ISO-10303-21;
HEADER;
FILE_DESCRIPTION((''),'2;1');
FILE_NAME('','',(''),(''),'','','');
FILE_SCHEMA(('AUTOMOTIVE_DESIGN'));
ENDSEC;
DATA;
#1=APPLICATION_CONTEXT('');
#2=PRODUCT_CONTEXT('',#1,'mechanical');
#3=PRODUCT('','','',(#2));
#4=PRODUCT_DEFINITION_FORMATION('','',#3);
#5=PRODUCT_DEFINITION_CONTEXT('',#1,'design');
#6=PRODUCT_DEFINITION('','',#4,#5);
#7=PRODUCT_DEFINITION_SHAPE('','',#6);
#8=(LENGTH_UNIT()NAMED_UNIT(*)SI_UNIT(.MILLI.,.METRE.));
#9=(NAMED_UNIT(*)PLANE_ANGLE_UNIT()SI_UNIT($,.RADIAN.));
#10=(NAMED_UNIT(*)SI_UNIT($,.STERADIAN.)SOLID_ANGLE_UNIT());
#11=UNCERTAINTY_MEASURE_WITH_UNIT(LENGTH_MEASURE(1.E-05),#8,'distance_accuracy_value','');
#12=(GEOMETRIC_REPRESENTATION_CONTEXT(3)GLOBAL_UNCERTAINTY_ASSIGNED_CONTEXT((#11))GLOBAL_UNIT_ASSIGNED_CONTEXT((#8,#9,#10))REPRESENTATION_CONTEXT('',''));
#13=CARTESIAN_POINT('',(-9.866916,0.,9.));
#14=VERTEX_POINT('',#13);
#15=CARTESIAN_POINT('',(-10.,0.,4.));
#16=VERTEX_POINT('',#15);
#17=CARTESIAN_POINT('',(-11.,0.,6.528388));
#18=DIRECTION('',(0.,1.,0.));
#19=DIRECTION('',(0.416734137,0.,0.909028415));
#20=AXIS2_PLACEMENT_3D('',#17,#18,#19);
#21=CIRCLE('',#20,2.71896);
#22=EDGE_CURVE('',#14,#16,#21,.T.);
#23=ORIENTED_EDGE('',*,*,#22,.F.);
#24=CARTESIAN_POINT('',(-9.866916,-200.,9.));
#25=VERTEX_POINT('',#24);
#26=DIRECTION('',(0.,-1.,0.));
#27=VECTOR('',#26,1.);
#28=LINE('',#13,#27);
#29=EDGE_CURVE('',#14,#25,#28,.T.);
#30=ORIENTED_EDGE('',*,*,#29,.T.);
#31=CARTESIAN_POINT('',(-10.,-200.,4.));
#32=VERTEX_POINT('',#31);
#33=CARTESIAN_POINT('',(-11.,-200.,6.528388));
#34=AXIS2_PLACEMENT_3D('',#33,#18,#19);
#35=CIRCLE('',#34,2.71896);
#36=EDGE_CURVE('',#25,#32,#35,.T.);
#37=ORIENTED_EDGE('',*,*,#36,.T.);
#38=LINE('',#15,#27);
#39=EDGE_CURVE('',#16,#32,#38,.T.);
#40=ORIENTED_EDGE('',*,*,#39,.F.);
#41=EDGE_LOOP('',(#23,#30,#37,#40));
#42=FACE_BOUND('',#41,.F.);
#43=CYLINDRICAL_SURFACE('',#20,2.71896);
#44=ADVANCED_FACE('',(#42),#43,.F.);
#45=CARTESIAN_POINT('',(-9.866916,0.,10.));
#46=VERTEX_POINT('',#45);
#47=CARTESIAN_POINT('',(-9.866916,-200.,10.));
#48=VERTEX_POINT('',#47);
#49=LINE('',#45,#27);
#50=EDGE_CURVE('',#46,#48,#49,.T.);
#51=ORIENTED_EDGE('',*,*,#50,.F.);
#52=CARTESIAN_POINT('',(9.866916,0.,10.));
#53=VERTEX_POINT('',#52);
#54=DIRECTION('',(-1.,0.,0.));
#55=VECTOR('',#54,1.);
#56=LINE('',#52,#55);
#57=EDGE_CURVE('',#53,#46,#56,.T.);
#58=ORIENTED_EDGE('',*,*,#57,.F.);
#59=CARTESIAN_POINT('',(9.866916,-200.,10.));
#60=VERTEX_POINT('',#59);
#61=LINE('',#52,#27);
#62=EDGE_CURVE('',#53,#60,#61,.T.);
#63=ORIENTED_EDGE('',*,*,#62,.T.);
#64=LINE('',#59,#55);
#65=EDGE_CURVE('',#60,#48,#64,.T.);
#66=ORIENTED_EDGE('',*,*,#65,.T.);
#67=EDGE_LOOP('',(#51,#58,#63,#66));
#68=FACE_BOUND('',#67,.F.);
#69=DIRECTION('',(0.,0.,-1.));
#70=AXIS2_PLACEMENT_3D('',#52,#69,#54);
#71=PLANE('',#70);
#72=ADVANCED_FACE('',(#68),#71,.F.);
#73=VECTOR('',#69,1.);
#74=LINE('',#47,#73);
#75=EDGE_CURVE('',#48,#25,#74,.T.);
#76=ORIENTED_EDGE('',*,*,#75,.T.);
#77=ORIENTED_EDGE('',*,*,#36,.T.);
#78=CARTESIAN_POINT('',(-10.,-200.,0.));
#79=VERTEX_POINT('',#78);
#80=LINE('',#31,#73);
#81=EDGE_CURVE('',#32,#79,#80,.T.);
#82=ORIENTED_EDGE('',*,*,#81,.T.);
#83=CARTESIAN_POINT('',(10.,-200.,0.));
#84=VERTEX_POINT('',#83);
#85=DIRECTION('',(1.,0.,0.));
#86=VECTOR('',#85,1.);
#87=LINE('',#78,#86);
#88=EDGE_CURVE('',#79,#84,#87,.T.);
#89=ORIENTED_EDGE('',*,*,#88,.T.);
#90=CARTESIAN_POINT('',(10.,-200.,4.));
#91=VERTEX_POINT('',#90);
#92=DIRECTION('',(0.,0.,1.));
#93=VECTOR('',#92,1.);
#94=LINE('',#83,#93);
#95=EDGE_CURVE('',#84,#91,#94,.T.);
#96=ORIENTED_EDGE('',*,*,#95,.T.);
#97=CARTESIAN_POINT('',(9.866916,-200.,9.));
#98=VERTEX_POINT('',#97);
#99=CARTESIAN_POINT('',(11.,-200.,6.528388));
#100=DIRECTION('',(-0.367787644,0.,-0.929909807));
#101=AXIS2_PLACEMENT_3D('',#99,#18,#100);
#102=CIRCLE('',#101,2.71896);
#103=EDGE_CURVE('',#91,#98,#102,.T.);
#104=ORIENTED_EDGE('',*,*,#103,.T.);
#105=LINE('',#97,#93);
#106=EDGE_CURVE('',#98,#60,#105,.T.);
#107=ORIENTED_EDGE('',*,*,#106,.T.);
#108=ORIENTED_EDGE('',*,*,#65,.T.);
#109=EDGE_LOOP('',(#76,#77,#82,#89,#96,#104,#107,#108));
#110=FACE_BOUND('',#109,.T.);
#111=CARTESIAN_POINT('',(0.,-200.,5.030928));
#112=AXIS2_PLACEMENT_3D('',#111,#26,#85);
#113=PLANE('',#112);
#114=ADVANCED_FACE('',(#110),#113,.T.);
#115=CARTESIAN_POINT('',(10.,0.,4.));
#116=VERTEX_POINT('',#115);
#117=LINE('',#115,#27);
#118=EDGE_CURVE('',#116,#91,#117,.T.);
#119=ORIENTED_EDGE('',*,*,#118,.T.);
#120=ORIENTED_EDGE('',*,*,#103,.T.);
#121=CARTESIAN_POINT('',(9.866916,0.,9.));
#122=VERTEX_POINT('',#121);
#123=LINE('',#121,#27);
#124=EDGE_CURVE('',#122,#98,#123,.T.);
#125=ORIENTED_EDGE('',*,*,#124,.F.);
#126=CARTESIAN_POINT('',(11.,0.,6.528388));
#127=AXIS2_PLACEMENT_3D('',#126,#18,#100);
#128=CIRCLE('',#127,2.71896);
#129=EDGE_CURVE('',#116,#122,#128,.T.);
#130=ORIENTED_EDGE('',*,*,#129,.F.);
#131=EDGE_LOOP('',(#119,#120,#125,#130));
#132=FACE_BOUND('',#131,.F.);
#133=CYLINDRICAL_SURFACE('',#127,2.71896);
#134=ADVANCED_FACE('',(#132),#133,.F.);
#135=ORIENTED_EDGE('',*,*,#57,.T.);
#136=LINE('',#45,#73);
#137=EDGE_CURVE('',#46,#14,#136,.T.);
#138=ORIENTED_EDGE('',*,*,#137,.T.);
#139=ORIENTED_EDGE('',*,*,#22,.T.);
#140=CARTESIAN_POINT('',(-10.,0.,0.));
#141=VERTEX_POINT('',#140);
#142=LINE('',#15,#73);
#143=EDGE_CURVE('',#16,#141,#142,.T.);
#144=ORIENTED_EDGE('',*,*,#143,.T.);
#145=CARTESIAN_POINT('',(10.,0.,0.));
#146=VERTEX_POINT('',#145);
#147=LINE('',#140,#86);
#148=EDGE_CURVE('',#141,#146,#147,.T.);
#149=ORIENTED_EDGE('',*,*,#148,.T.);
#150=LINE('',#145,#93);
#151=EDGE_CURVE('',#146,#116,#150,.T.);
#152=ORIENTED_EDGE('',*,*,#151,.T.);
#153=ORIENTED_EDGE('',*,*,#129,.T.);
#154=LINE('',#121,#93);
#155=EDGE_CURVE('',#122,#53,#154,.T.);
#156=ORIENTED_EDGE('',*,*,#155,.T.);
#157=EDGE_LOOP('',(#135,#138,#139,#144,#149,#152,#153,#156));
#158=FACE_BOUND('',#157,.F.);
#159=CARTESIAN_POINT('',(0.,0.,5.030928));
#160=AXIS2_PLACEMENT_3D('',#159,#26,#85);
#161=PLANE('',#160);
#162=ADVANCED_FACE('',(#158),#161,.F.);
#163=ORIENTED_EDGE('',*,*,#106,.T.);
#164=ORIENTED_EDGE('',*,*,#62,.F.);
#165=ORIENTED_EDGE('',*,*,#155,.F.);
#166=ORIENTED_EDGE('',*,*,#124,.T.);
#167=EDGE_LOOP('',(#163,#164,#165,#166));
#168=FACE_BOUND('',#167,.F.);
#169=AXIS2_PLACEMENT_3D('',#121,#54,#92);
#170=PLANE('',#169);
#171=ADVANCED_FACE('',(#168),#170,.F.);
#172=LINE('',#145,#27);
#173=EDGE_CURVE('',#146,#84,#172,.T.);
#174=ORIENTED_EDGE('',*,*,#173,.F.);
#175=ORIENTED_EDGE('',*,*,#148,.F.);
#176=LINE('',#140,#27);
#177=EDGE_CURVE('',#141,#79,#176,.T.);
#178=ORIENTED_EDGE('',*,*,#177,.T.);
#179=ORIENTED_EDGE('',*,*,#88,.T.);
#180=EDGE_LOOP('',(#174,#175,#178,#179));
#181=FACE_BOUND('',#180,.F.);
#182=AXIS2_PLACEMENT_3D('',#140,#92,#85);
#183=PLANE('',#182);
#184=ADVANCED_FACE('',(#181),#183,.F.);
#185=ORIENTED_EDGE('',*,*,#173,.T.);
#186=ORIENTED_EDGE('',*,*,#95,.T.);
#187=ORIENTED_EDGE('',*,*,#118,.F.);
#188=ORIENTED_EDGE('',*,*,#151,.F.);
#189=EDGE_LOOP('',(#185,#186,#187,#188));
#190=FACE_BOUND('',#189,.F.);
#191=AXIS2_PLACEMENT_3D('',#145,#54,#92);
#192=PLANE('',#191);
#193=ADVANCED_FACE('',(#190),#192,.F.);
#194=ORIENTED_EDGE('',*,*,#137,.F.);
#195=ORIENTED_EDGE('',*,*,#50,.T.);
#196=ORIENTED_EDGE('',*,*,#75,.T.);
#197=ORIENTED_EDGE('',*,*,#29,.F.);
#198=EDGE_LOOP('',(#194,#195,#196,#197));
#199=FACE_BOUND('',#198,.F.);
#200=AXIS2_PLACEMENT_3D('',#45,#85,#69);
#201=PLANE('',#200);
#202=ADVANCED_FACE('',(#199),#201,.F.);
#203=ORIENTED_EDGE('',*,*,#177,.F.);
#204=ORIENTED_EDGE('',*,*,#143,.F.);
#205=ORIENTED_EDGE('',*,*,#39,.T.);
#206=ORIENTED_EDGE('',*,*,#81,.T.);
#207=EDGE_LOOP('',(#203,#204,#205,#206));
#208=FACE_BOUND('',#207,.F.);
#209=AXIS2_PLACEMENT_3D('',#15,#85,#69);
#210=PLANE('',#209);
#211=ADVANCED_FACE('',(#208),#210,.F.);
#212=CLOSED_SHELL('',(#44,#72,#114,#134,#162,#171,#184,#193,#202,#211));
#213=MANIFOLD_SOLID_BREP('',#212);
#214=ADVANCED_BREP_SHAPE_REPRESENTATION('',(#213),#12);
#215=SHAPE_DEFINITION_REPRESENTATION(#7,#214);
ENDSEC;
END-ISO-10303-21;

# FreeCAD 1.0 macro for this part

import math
import FreeCAD as App
import Part
import Sketcher
from FreeCAD import Vector

doc = App.newDocument("Part")
body = doc.addObject("PartDesign::Body", "Body")

sketch1 = body.newObject("Sketcher::SketchObject", "Sketch")
sketch1.AttachmentSupport = (doc.getObject("XZ_Plane"), [""])
sketch1.MapMode = "FlatFace"
sketch1.addGeometry([
    Part.LineSegment(Vector(-10, 0, 0), Vector(10, 0, 0)),
    Part.LineSegment(Vector(10, 0, 0), Vector(10, 4, 0)),
    Part.ArcOfCircle(Part.Circle(Vector(11, 6.5, 0), Vector(0, 0, 1), 2.7), math.radians(115), math.radians(248)),
    Part.LineSegment(Vector(9.9, 9, 0), Vector(9.9, 10, 0)),
    Part.LineSegment(Vector(9.9, 10, 0), Vector(-9.9, 10, 0)),
    Part.LineSegment(Vector(-9.9, 10, 0), Vector(-9.9, 9, 0)),
    Part.ArcOfCircle(Part.Circle(Vector(-11, 6.5, 0), Vector(0, 0, 1), 2.7), math.radians(-68), math.radians(65)),
    Part.LineSegment(Vector(-10, 4, 0), Vector(-10, 0, 0)),
], False)
sketch1.addConstraint([
    Sketcher.Constraint("Coincident", 0, 2, 1, 1),
    Sketcher.Constraint("Coincident", 1, 2, 2, 2),
    Sketcher.Constraint("Coincident", 2, 1, 3, 1),
    Sketcher.Constraint("Coincident", 3, 2, 4, 1),
    Sketcher.Constraint("Coincident", 4, 2, 5, 1),
    Sketcher.Constraint("Coincident", 5, 2, 6, 2),
    Sketcher.Constraint("Coincident", 6, 1, 7, 1),
    Sketcher.Constraint("Coincident", 7, 2, 0, 1),
    Sketcher.Constraint("Horizontal", 0),
    Sketcher.Constraint("Vertical", 1),
    Sketcher.Constraint("Vertical", 3),
    Sketcher.Constraint("Horizontal", 4),
    Sketcher.Constraint("Vertical", 5),
    Sketcher.Constraint("Vertical", 7),
    Sketcher.Constraint("Equal", 2, 6),
    Sketcher.Constraint("Symmetric", 0, 2, 7, 2, -1, 1),
    Sketcher.Constraint("Symmetric", 2, 3, 6, 3, -2),
    Sketcher.Constraint("Horizontal", 2, 1, 5, 2),
    Sketcher.Constraint("DistanceX", 0, 1, 0, 2, 20.0),
    Sketcher.Constraint("DistanceY", 1, 1, 1, 2, 4.0),
    Sketcher.Constraint("DistanceY", 3, 1, 3, 2, 1.0),
    Sketcher.Constraint("DistanceX", -1, 1, 2, 3, 11.0),
    Sketcher.Constraint("DistanceY", -1, 1, 2, 1, 9.0),
    Sketcher.Constraint("Radius", 2, 2.71896),
])
pad1 = body.newObject("PartDesign::Pad", "Pad")
pad1.Profile = sketch1
pad1.Length = 200

doc.recompute()
